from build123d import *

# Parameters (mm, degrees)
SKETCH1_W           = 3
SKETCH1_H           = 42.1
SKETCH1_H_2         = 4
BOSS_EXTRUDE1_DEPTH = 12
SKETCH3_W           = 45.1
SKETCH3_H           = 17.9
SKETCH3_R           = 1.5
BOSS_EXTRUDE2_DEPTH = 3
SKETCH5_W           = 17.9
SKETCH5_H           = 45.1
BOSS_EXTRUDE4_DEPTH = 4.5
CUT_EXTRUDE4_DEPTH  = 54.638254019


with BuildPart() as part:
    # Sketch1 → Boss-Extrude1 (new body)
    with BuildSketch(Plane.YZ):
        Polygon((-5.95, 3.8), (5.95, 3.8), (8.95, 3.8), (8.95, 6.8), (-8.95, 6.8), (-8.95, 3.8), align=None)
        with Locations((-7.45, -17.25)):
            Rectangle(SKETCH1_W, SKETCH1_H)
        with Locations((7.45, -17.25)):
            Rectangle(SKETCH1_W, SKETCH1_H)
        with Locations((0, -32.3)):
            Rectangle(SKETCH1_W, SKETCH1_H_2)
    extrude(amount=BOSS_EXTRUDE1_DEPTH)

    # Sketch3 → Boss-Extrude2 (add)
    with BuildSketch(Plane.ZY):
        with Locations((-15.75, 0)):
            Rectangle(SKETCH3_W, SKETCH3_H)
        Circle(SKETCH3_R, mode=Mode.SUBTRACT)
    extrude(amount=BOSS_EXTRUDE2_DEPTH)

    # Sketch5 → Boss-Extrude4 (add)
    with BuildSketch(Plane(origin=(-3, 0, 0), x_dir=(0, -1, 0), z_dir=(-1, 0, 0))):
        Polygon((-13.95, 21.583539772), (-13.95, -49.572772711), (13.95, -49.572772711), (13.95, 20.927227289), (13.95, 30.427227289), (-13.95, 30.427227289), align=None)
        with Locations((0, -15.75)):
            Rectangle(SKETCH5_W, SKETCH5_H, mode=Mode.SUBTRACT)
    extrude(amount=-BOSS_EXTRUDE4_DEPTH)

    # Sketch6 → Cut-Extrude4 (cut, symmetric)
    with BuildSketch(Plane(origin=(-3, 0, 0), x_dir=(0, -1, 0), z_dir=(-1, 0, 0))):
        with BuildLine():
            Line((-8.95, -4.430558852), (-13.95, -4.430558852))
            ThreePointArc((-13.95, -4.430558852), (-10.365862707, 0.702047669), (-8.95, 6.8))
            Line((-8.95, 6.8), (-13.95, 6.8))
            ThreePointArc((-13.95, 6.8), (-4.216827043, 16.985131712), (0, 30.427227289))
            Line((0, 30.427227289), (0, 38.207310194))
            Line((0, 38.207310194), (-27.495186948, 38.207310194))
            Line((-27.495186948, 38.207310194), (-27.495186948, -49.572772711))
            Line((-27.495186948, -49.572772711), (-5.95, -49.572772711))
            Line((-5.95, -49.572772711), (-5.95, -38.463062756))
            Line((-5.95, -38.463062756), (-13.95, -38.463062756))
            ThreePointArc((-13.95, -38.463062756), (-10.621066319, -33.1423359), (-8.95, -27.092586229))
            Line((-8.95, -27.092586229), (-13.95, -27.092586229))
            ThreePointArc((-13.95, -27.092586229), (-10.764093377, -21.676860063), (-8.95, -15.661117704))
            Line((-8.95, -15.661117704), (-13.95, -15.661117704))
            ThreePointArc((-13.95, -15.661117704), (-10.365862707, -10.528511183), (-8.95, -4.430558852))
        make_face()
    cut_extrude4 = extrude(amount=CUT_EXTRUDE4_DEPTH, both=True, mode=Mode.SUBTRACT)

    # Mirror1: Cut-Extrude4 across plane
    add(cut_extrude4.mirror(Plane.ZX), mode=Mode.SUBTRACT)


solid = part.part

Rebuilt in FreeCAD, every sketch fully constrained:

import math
import FreeCAD as App
import Part
import Sketcher
from FreeCAD import Vector
Q = App.Units.Quantity

doc = App.newDocument("Part")
params = doc.addObject("Spreadsheet::Sheet", "Params")
for row, (alias, value) in enumerate([
    ("sketch1_width", "3 mm"),
    ("sketch1_height", "4 mm"),
    ("sketch1_width2", "17.9 mm"),
    ("sketch1_height2", "45.1 mm"),
    ("sketch1_height3", "42.1 mm"),
    ("pad1_length", "12 mm"),
    ("sketch2_diameter", "3 mm"),
    ("sketch2_width", "17.9 mm"),
    ("sketch2_height", "45.1 mm"),
    ("pad2_length", "3 mm"),
    ("sketch3_height", "80 mm"),
    ("sketch3_width", "27.9 mm"),
    ("sketch3_width2", "17.9 mm"),
    ("sketch3_height2", "45.1 mm"),
    ("pad3_length", "4.5 mm"),
    ("sketch4_width", "5 mm"),
    ("sketch4_width2", "8 mm"),
    ("pocket1_length", "109.276508 mm"),
], start=1):
    params.set(f"A{row}", alias)
    params.set(f"B{row}", "=" + value)
    params.setAlias(f"B{row}", alias)

body = doc.addObject("PartDesign::Body", "Body")
body.AllowCompound = True

sketch1 = body.newObject("Sketcher::SketchObject", "Sketch")
sketch1.AttachmentSupport = (doc.getObject("YZ_Plane"), [""])
sketch1.MapMode = "FlatFace"
sketch1.addGeometry(Part.LineSegment(Vector(8.9, 6.8, 0), Vector(-8.9, 6.8, 0)), False)
sketch1.addGeometry(Part.LineSegment(Vector(-8.9, 6.8, 0), Vector(-8.9, -38.3, 0)), False)
sketch1.addGeometry(Part.LineSegment(Vector(-8.9, -38.3, 0), Vector(-6, -38.3, 0)), False)
sketch1.addGeometry(Part.LineSegment(Vector(-6, -38.3, 0), Vector(-6, 3.8, 0)), False)
sketch1.addGeometry(Part.LineSegment(Vector(-6, 3.8, 0), Vector(6, 3.8, 0)), False)
sketch1.addGeometry(Part.LineSegment(Vector(6, 3.8, 0), Vector(6, -38.3, 0)), False)
sketch1.addGeometry(Part.LineSegment(Vector(6, -38.3, 0), Vector(8.9, -38.3, 0)), False)
sketch1.addGeometry(Part.LineSegment(Vector(8.9, -38.3, 0), Vector(8.9, 6.8, 0)), False)
sketch1.addGeometry(Part.LineSegment(Vector(-1.5, -30.3, 0), Vector(-1.5, -34.3, 0)), False)
sketch1.addGeometry(Part.LineSegment(Vector(-1.5, -34.3, 0), Vector(1.5, -34.3, 0)), False)
sketch1.addGeometry(Part.LineSegment(Vector(1.5, -34.3, 0), Vector(1.5, -30.3, 0)), False)
sketch1.addGeometry(Part.LineSegment(Vector(1.5, -30.3, 0), Vector(-1.5, -30.3, 0)), False)
sketch1.addConstraint(Sketcher.Constraint("Coincident", 0, 2, 1, 1))
sketch1.addConstraint(Sketcher.Constraint("Coincident", 1, 2, 2, 1))
sketch1.addConstraint(Sketcher.Constraint("Coincident", 2, 2, 3, 1))
sketch1.addConstraint(Sketcher.Constraint("Coincident", 3, 2, 4, 1))
sketch1.addConstraint(Sketcher.Constraint("Coincident", 4, 2, 5, 1))
sketch1.addConstraint(Sketcher.Constraint("Coincident", 5, 2, 6, 1))
sketch1.addConstraint(Sketcher.Constraint("Coincident", 6, 2, 7, 1))
sketch1.addConstraint(Sketcher.Constraint("Coincident", 7, 2, 0, 1))
sketch1.addConstraint(Sketcher.Constraint("Coincident", 8, 2, 9, 1))
sketch1.addConstraint(Sketcher.Constraint("Coincident", 9, 2, 10, 1))
sketch1.addConstraint(Sketcher.Constraint("Coincident", 10, 2, 11, 1))
sketch1.addConstraint(Sketcher.Constraint("Coincident", 11, 2, 8, 1))
sketch1.addConstraint(Sketcher.Constraint("Horizontal", 0))
sketch1.addConstraint(Sketcher.Constraint("Vertical", 1))
sketch1.addConstraint(Sketcher.Constraint("Horizontal", 2))
sketch1.addConstraint(Sketcher.Constraint("Vertical", 3))
sketch1.addConstraint(Sketcher.Constraint("Horizontal", 4))
sketch1.addConstraint(Sketcher.Constraint("Vertical", 5))
sketch1.addConstraint(Sketcher.Constraint("Horizontal", 6))
sketch1.addConstraint(Sketcher.Constraint("Vertical", 7))
sketch1.addConstraint(Sketcher.Constraint("Vertical", 8))
sketch1.addConstraint(Sketcher.Constraint("Horizontal", 9))
sketch1.addConstraint(Sketcher.Constraint("Vertical", 10))
sketch1.addConstraint(Sketcher.Constraint("Horizontal", 11))
sketch1.addConstraint(Sketcher.Constraint("Symmetric", 2, 2, 5, 2, -2))
sketch1.addConstraint(Sketcher.Constraint("Equal", 2, 6))
sketch1.addConstraint(Sketcher.Constraint("Equal", 6, 9))
sketch1.addConstraint(Sketcher.Constraint("DistanceX", 2, 1, 2, 2, Q("3 mm")))
sketch1.addConstraint(Sketcher.Constraint("DistanceY", 8, 2, 8, 1, Q("4 mm")))
sketch1.addConstraint(Sketcher.Constraint("DistanceX", 0, 2, 0, 1, Q("17.9 mm")))
sketch1.addConstraint(Sketcher.Constraint("DistanceY", 1, 2, 1, 1, Q("45.1 mm")))
sketch1.addConstraint(Sketcher.Constraint("DistanceY", 3, 1, 3, 2, Q("42.1 mm")))
sketch1.addConstraint(Sketcher.Constraint("DistanceY", 2, 2, 8, 2, Q("4 mm")))
sketch1.addConstraint(Sketcher.Constraint("DistanceY", -1, 1, 0, 2, Q("6.8 mm")))
sketch1.addConstraint(Sketcher.Constraint("DistanceX", 8, 2, -1, 1, Q("1.5 mm")))
sketch1.setExpression("Constraints[27]", "Params.sketch1_width")
sketch1.setExpression("Constraints[28]", "Params.sketch1_height")
sketch1.setExpression("Constraints[29]", "Params.sketch1_width2")
sketch1.setExpression("Constraints[30]", "Params.sketch1_height2")
sketch1.setExpression("Constraints[31]", "Params.sketch1_height3")
pad1 = body.newObject("PartDesign::Pad", "Pad")
pad1.Profile = sketch1
pad1.setExpression("Length", "Params.pad1_length")

sketch2 = body.newObject("Sketcher::SketchObject", "Sketch001")
sketch2.AttachmentSupport = (doc.getObject("YZ_Plane"), [""])
sketch2.MapMode = "FlatFace"
sketch2.addGeometry(Part.LineSegment(Vector(8.9, -38.3, 0), Vector(-8.9, -38.3, 0)), False)
sketch2.addGeometry(Part.LineSegment(Vector(-8.9, -38.3, 0), Vector(-8.9, 6.8, 0)), False)
sketch2.addGeometry(Part.LineSegment(Vector(-8.9, 6.8, 0), Vector(8.9, 6.8, 0)), False)
sketch2.addGeometry(Part.LineSegment(Vector(8.9, 6.8, 0), Vector(8.9, -38.3, 0)), False)
sketch2.addGeometry(Part.Circle(Vector(0, 0, 0), Vector(0, 0, 1), 1.5), False)
sketch2.addConstraint(Sketcher.Constraint("Coincident", 0, 2, 1, 1))
sketch2.addConstraint(Sketcher.Constraint("Coincident", 1, 2, 2, 1))
sketch2.addConstraint(Sketcher.Constraint("Coincident", 2, 2, 3, 1))
sketch2.addConstraint(Sketcher.Constraint("Coincident", 3, 2, 0, 1))
sketch2.addConstraint(Sketcher.Constraint("Horizontal", 0))
sketch2.addConstraint(Sketcher.Constraint("Vertical", 1))
sketch2.addConstraint(Sketcher.Constraint("Horizontal", 2))
sketch2.addConstraint(Sketcher.Constraint("Vertical", 3))
sketch2.addConstraint(Sketcher.Constraint("Coincident", 4, 3, -1, 1))
sketch2.addConstraint(Sketcher.Constraint("Diameter", 4, Q("3 mm")))
sketch2.addConstraint(Sketcher.Constraint("DistanceX", 0, 2, 0, 1, Q("17.9 mm")))
sketch2.addConstraint(Sketcher.Constraint("DistanceY", 1, 1, 1, 2, Q("45.1 mm")))
sketch2.addConstraint(Sketcher.Constraint("DistanceY", 0, 2, -1, 1, Q("38.3 mm")))
sketch2.addConstraint(Sketcher.Constraint("DistanceX", 0, 2, -1, 1, Q("8.95 mm")))
sketch2.setExpression("Constraints[9]", "Params.sketch2_diameter")
sketch2.setExpression("Constraints[10]", "Params.sketch2_width")
sketch2.setExpression("Constraints[11]", "Params.sketch2_height")
pad2 = body.newObject("PartDesign::Pad", "Pad001")
pad2.Profile = sketch2
pad2.setExpression("Length", "Params.pad2_length")
pad2.Reversed = True

sketch3 = body.newObject("Sketcher::SketchObject", "Sketch002")
sketch3.AttachmentSupport = (doc.getObject("YZ_Plane"), [""])
sketch3.MapMode = "FlatFace"
sketch3.AttachmentOffset = App.Placement(Vector(0, 0, -3), App.Rotation())
sketch3.addGeometry(Part.LineSegment(Vector(14, -50, 0), Vector(-14, -50, 0)), False)
sketch3.addGeometry(Part.LineSegment(Vector(-14, -50, 0), Vector(-14, 30, 0)), False)
sketch3.addGeometry(Part.LineSegment(Vector(-14, 30, 0), Vector(14, 30, 0)), False)
sketch3.addGeometry(Part.LineSegment(Vector(14, 30, 0), Vector(14, -50, 0)), False)
sketch3.addGeometry(Part.LineSegment(Vector(-9, -38, 0), Vector(9, -38, 0)), False)
sketch3.addGeometry(Part.LineSegment(Vector(9, -38, 0), Vector(9, 7, 0)), False)
sketch3.addGeometry(Part.LineSegment(Vector(9, 7, 0), Vector(-9, 7, 0)), False)
sketch3.addGeometry(Part.LineSegment(Vector(-9, 7, 0), Vector(-9, -38, 0)), False)
sketch3.addConstraint(Sketcher.Constraint("Coincident", 0, 2, 1, 1))
sketch3.addConstraint(Sketcher.Constraint("Coincident", 1, 2, 2, 1))
sketch3.addConstraint(Sketcher.Constraint("Coincident", 2, 2, 3, 1))
sketch3.addConstraint(Sketcher.Constraint("Coincident", 3, 2, 0, 1))
sketch3.addConstraint(Sketcher.Constraint("Coincident", 4, 2, 5, 1))
sketch3.addConstraint(Sketcher.Constraint("Coincident", 5, 2, 6, 1))
sketch3.addConstraint(Sketcher.Constraint("Coincident", 6, 2, 7, 1))
sketch3.addConstraint(Sketcher.Constraint("Coincident", 7, 2, 4, 1))
sketch3.addConstraint(Sketcher.Constraint("Horizontal", 0))
sketch3.addConstraint(Sketcher.Constraint("Vertical", 1))
sketch3.addConstraint(Sketcher.Constraint("Horizontal", 2))
sketch3.addConstraint(Sketcher.Constraint("Vertical", 3))
sketch3.addConstraint(Sketcher.Constraint("Horizontal", 4))
sketch3.addConstraint(Sketcher.Constraint("Vertical", 5))
sketch3.addConstraint(Sketcher.Constraint("Horizontal", 6))
sketch3.addConstraint(Sketcher.Constraint("Vertical", 7))
sketch3.addConstraint(Sketcher.Constraint("DistanceY", 1, 1, 1, 2, Q("80 mm")))
sketch3.addConstraint(Sketcher.Constraint("DistanceX", 0, 2, 0, 1, Q("27.9 mm")))
sketch3.addConstraint(Sketcher.Constraint("DistanceX", 4, 1, 4, 2, Q("17.9 mm")))
sketch3.addConstraint(Sketcher.Constraint("DistanceY", 5, 1, 5, 2, Q("45.1 mm")))
sketch3.addConstraint(Sketcher.Constraint("DistanceX", 4, 2, 3, 2, Q("5 mm")))
sketch3.addConstraint(Sketcher.Constraint("DistanceY", 4, 2, -1, 1, Q("38.3 mm")))
sketch3.addConstraint(Sketcher.Constraint("DistanceX", 0, 2, -1, 1, Q("13.95 mm")))
sketch3.addConstraint(Sketcher.Constraint("DistanceY", 0, 2, -1, 1, Q("49.572773 mm")))
sketch3.setExpression("Constraints[16]", "Params.sketch3_height")
sketch3.setExpression("Constraints[17]", "Params.sketch3_width")
sketch3.setExpression("Constraints[18]", "Params.sketch3_width2")
sketch3.setExpression("Constraints[19]", "Params.sketch3_height2")
pad3 = body.newObject("PartDesign::Pad", "Pad002")
pad3.Profile = sketch3
pad3.setExpression("Length", "Params.pad3_length")

sketch4 = body.newObject("Sketcher::SketchObject", "Sketch003")
sketch4.AttachmentSupport = (doc.getObject("YZ_Plane"), [""])
sketch4.MapMode = "FlatFace"
sketch4.AttachmentOffset = App.Placement(Vector(0, 0, -3), App.Rotation())
sketch4.addGeometry(Part.LineSegment(Vector(9, -4, 0), Vector(14, -4, 0)), False)
sketch4.addGeometry(Part.ArcOfCircle(Part.Circle(Vector(25, 7, 0), Vector(0, 0, 1), 17), math.radians(-178), math.radians(-134)), False)
sketch4.addGeometry(Part.LineSegment(Vector(9, 7, 0), Vector(14, 7, 0)), False)
sketch4.addGeometry(Part.ArcOfCircle(Part.Circle(Vector(31, 33, 0), Vector(0, 0, 1), 31), math.radians(-176), math.radians(-123)), False)
sketch4.addGeometry(Part.LineSegment(Vector(0, 30, 0), Vector(0, 38, 0)), False)
sketch4.addGeometry(Part.LineSegment(Vector(0, 38, 0), Vector(27, 38, 0)), False)
sketch4.addGeometry(Part.LineSegment(Vector(27, 38, 0), Vector(27, -50, 0)), False)
sketch4.addGeometry(Part.LineSegment(Vector(27, -50, 0), Vector(6, -50, 0)), False)
sketch4.addGeometry(Part.LineSegment(Vector(6, -50, 0), Vector(6, -38, 0)), False)
sketch4.addGeometry(Part.LineSegment(Vector(6, -38, 0), Vector(14, -38, 0)), False)
sketch4.addGeometry(Part.ArcOfCircle(Part.Circle(Vector(31, -24, 0), Vector(0, 0, 1), 22), math.radians(-173), math.radians(-140)), False)
sketch4.addGeometry(Part.LineSegment(Vector(9, -27, 0), Vector(14, -27, 0)), False)
sketch4.addGeometry(Part.ArcOfCircle(Part.Circle(Vector(35, -11, 0), Vector(0, 0, 1), 26), math.radians(-170), math.radians(-143)), False)
sketch4.addGeometry(Part.LineSegment(Vector(9, -16, 0), Vector(14, -16, 0)), False)
sketch4.addGeometry(Part.ArcOfCircle(Part.Circle(Vector(25, -4, 0), Vector(0, 0, 1), 17), math.radians(-178), math.radians(-134)), False)
sketch4.addConstraint(Sketcher.Constraint("Coincident", 0, 2, 1, 2))
sketch4.addConstraint(Sketcher.Constraint("Coincident", 1, 1, 2, 1))
sketch4.addConstraint(Sketcher.Constraint("Coincident", 2, 2, 3, 2))
sketch4.addConstraint(Sketcher.Constraint("Coincident", 3, 1, 4, 1))
sketch4.addConstraint(Sketcher.Constraint("Coincident", 4, 2, 5, 1))
sketch4.addConstraint(Sketcher.Constraint("Coincident", 5, 2, 6, 1))
sketch4.addConstraint(Sketcher.Constraint("Coincident", 6, 2, 7, 1))
sketch4.addConstraint(Sketcher.Constraint("Coincident", 7, 2, 8, 1))
sketch4.addConstraint(Sketcher.Constraint("Coincident", 8, 2, 9, 1))
sketch4.addConstraint(Sketcher.Constraint("Coincident", 9, 2, 10, 2))
sketch4.addConstraint(Sketcher.Constraint("Coincident", 10, 1, 11, 1))
sketch4.addConstraint(Sketcher.Constraint("Coincident", 11, 2, 12, 2))
sketch4.addConstraint(Sketcher.Constraint("Coincident", 12, 1, 13, 1))
sketch4.addConstraint(Sketcher.Constraint("Coincident", 13, 2, 14, 2))
sketch4.addConstraint(Sketcher.Constraint("Coincident", 14, 1, 0, 1))
sketch4.addConstraint(Sketcher.Constraint("Horizontal", 0))
sketch4.addConstraint(Sketcher.Constraint("Horizontal", 2))
sketch4.addConstraint(Sketcher.Constraint("Vertical", 4))
sketch4.addConstraint(Sketcher.Constraint("Horizontal", 5))
sketch4.addConstraint(Sketcher.Constraint("Vertical", 6))
sketch4.addConstraint(Sketcher.Constraint("Horizontal", 7))
sketch4.addConstraint(Sketcher.Constraint("Vertical", 8))
sketch4.addConstraint(Sketcher.Constraint("Horizontal", 9))
sketch4.addConstraint(Sketcher.Constraint("Horizontal", 11))
sketch4.addConstraint(Sketcher.Constraint("Horizontal", 13))
sketch4.addConstraint(Sketcher.Constraint("Equal", 1, 14))
sketch4.addConstraint(Sketcher.Constraint("PointOnObject", 3, 1, -2))
sketch4.addConstraint(Sketcher.Constraint("Vertical", 1, 3, 14, 3))
sketch4.addConstraint(Sketcher.Constraint("Vertical", 0, 2, 2, 2))
sketch4.addConstraint(Sketcher.Constraint("Vertical", 2, 2, 9, 2))
sketch4.addConstraint(Sketcher.Constraint("Vertical", 1, 1, 10, 1))
sketch4.addConstraint(Sketcher.Constraint("Vertical", 9, 2, 11, 2))
sketch4.addConstraint(Sketcher.Constraint("Vertical", 10, 1, 12, 1))
sketch4.addConstraint(Sketcher.Constraint("Vertical", 11, 2, 13, 2))
sketch4.addConstraint(Sketcher.Constraint("Vertical", 12, 1, 14, 1))
sketch4.addConstraint(Sketcher.Constraint("DistanceX", 0, 1, 0, 2, Q("5 mm")))
sketch4.addConstraint(Sketcher.Constraint("DistanceX", 9, 1, 9, 2, Q("8 mm")))
sketch4.addConstraint(Sketcher.Constraint("DistanceY", -1, 1, 1, 1, Q("6.8 mm")))
sketch4.addConstraint(Sketcher.Constraint("DistanceX", -1, 1, 0, 2, Q("13.95 mm")))
sketch4.addConstraint(Sketcher.Constraint("Radius", 3, Q("30.98174 mm")))
sketch4.addConstraint(Sketcher.Constraint("Radius", 10, Q("21.750562 mm")))
sketch4.addConstraint(Sketcher.Constraint("Radius", 1, Q("16.511636 mm")))
sketch4.addConstraint(Sketcher.Constraint("Radius", 12, Q("26.367618 mm")))
sketch4.addConstraint(Sketcher.Constraint("DistanceY", 8, 1, 8, 2, Q("11.10971 mm")))
sketch4.addConstraint(Sketcher.Constraint("DistanceY", 14, 3, 3, 3, Q("36.5496 mm")))
sketch4.addConstraint(Sketcher.Constraint("DistanceY", 10, 3, 0, 2, Q("19.956401 mm")))
sketch4.addConstraint(Sketcher.Constraint("DistanceX", 5, 1, 5, 2, Q("27.495187 mm")))
sketch4.addConstraint(Sketcher.Constraint("DistanceY", 4, 1, 4, 2, Q("7.780083 mm")))
sketch4.addConstraint(Sketcher.Constraint("DistanceY", 6, 2, 6, 1, Q("87.780083 mm")))
sketch4.addConstraint(Sketcher.Constraint("DistanceY", -1, 1, 3, 3, Q("32.736789 mm")))
sketch4.setExpression("Constraints[35]", "Params.sketch4_width")
sketch4.setExpression("Constraints[36]", "Params.sketch4_width2")
pocket1 = body.newObject("PartDesign::Pocket", "Pocket")
pocket1.Profile = sketch4
pocket1.setExpression("Length", "Params.pocket1_length")
pocket1.Midplane = True
doc.recompute()

mirrored = body.newObject("PartDesign::Mirrored", "Mirrored")
mirrored.Originals = [pocket1]
mirrored.MirrorPlane = (doc.getObject("XZ_Plane"), [""])
body.Tip = mirrored

doc.recompute()
